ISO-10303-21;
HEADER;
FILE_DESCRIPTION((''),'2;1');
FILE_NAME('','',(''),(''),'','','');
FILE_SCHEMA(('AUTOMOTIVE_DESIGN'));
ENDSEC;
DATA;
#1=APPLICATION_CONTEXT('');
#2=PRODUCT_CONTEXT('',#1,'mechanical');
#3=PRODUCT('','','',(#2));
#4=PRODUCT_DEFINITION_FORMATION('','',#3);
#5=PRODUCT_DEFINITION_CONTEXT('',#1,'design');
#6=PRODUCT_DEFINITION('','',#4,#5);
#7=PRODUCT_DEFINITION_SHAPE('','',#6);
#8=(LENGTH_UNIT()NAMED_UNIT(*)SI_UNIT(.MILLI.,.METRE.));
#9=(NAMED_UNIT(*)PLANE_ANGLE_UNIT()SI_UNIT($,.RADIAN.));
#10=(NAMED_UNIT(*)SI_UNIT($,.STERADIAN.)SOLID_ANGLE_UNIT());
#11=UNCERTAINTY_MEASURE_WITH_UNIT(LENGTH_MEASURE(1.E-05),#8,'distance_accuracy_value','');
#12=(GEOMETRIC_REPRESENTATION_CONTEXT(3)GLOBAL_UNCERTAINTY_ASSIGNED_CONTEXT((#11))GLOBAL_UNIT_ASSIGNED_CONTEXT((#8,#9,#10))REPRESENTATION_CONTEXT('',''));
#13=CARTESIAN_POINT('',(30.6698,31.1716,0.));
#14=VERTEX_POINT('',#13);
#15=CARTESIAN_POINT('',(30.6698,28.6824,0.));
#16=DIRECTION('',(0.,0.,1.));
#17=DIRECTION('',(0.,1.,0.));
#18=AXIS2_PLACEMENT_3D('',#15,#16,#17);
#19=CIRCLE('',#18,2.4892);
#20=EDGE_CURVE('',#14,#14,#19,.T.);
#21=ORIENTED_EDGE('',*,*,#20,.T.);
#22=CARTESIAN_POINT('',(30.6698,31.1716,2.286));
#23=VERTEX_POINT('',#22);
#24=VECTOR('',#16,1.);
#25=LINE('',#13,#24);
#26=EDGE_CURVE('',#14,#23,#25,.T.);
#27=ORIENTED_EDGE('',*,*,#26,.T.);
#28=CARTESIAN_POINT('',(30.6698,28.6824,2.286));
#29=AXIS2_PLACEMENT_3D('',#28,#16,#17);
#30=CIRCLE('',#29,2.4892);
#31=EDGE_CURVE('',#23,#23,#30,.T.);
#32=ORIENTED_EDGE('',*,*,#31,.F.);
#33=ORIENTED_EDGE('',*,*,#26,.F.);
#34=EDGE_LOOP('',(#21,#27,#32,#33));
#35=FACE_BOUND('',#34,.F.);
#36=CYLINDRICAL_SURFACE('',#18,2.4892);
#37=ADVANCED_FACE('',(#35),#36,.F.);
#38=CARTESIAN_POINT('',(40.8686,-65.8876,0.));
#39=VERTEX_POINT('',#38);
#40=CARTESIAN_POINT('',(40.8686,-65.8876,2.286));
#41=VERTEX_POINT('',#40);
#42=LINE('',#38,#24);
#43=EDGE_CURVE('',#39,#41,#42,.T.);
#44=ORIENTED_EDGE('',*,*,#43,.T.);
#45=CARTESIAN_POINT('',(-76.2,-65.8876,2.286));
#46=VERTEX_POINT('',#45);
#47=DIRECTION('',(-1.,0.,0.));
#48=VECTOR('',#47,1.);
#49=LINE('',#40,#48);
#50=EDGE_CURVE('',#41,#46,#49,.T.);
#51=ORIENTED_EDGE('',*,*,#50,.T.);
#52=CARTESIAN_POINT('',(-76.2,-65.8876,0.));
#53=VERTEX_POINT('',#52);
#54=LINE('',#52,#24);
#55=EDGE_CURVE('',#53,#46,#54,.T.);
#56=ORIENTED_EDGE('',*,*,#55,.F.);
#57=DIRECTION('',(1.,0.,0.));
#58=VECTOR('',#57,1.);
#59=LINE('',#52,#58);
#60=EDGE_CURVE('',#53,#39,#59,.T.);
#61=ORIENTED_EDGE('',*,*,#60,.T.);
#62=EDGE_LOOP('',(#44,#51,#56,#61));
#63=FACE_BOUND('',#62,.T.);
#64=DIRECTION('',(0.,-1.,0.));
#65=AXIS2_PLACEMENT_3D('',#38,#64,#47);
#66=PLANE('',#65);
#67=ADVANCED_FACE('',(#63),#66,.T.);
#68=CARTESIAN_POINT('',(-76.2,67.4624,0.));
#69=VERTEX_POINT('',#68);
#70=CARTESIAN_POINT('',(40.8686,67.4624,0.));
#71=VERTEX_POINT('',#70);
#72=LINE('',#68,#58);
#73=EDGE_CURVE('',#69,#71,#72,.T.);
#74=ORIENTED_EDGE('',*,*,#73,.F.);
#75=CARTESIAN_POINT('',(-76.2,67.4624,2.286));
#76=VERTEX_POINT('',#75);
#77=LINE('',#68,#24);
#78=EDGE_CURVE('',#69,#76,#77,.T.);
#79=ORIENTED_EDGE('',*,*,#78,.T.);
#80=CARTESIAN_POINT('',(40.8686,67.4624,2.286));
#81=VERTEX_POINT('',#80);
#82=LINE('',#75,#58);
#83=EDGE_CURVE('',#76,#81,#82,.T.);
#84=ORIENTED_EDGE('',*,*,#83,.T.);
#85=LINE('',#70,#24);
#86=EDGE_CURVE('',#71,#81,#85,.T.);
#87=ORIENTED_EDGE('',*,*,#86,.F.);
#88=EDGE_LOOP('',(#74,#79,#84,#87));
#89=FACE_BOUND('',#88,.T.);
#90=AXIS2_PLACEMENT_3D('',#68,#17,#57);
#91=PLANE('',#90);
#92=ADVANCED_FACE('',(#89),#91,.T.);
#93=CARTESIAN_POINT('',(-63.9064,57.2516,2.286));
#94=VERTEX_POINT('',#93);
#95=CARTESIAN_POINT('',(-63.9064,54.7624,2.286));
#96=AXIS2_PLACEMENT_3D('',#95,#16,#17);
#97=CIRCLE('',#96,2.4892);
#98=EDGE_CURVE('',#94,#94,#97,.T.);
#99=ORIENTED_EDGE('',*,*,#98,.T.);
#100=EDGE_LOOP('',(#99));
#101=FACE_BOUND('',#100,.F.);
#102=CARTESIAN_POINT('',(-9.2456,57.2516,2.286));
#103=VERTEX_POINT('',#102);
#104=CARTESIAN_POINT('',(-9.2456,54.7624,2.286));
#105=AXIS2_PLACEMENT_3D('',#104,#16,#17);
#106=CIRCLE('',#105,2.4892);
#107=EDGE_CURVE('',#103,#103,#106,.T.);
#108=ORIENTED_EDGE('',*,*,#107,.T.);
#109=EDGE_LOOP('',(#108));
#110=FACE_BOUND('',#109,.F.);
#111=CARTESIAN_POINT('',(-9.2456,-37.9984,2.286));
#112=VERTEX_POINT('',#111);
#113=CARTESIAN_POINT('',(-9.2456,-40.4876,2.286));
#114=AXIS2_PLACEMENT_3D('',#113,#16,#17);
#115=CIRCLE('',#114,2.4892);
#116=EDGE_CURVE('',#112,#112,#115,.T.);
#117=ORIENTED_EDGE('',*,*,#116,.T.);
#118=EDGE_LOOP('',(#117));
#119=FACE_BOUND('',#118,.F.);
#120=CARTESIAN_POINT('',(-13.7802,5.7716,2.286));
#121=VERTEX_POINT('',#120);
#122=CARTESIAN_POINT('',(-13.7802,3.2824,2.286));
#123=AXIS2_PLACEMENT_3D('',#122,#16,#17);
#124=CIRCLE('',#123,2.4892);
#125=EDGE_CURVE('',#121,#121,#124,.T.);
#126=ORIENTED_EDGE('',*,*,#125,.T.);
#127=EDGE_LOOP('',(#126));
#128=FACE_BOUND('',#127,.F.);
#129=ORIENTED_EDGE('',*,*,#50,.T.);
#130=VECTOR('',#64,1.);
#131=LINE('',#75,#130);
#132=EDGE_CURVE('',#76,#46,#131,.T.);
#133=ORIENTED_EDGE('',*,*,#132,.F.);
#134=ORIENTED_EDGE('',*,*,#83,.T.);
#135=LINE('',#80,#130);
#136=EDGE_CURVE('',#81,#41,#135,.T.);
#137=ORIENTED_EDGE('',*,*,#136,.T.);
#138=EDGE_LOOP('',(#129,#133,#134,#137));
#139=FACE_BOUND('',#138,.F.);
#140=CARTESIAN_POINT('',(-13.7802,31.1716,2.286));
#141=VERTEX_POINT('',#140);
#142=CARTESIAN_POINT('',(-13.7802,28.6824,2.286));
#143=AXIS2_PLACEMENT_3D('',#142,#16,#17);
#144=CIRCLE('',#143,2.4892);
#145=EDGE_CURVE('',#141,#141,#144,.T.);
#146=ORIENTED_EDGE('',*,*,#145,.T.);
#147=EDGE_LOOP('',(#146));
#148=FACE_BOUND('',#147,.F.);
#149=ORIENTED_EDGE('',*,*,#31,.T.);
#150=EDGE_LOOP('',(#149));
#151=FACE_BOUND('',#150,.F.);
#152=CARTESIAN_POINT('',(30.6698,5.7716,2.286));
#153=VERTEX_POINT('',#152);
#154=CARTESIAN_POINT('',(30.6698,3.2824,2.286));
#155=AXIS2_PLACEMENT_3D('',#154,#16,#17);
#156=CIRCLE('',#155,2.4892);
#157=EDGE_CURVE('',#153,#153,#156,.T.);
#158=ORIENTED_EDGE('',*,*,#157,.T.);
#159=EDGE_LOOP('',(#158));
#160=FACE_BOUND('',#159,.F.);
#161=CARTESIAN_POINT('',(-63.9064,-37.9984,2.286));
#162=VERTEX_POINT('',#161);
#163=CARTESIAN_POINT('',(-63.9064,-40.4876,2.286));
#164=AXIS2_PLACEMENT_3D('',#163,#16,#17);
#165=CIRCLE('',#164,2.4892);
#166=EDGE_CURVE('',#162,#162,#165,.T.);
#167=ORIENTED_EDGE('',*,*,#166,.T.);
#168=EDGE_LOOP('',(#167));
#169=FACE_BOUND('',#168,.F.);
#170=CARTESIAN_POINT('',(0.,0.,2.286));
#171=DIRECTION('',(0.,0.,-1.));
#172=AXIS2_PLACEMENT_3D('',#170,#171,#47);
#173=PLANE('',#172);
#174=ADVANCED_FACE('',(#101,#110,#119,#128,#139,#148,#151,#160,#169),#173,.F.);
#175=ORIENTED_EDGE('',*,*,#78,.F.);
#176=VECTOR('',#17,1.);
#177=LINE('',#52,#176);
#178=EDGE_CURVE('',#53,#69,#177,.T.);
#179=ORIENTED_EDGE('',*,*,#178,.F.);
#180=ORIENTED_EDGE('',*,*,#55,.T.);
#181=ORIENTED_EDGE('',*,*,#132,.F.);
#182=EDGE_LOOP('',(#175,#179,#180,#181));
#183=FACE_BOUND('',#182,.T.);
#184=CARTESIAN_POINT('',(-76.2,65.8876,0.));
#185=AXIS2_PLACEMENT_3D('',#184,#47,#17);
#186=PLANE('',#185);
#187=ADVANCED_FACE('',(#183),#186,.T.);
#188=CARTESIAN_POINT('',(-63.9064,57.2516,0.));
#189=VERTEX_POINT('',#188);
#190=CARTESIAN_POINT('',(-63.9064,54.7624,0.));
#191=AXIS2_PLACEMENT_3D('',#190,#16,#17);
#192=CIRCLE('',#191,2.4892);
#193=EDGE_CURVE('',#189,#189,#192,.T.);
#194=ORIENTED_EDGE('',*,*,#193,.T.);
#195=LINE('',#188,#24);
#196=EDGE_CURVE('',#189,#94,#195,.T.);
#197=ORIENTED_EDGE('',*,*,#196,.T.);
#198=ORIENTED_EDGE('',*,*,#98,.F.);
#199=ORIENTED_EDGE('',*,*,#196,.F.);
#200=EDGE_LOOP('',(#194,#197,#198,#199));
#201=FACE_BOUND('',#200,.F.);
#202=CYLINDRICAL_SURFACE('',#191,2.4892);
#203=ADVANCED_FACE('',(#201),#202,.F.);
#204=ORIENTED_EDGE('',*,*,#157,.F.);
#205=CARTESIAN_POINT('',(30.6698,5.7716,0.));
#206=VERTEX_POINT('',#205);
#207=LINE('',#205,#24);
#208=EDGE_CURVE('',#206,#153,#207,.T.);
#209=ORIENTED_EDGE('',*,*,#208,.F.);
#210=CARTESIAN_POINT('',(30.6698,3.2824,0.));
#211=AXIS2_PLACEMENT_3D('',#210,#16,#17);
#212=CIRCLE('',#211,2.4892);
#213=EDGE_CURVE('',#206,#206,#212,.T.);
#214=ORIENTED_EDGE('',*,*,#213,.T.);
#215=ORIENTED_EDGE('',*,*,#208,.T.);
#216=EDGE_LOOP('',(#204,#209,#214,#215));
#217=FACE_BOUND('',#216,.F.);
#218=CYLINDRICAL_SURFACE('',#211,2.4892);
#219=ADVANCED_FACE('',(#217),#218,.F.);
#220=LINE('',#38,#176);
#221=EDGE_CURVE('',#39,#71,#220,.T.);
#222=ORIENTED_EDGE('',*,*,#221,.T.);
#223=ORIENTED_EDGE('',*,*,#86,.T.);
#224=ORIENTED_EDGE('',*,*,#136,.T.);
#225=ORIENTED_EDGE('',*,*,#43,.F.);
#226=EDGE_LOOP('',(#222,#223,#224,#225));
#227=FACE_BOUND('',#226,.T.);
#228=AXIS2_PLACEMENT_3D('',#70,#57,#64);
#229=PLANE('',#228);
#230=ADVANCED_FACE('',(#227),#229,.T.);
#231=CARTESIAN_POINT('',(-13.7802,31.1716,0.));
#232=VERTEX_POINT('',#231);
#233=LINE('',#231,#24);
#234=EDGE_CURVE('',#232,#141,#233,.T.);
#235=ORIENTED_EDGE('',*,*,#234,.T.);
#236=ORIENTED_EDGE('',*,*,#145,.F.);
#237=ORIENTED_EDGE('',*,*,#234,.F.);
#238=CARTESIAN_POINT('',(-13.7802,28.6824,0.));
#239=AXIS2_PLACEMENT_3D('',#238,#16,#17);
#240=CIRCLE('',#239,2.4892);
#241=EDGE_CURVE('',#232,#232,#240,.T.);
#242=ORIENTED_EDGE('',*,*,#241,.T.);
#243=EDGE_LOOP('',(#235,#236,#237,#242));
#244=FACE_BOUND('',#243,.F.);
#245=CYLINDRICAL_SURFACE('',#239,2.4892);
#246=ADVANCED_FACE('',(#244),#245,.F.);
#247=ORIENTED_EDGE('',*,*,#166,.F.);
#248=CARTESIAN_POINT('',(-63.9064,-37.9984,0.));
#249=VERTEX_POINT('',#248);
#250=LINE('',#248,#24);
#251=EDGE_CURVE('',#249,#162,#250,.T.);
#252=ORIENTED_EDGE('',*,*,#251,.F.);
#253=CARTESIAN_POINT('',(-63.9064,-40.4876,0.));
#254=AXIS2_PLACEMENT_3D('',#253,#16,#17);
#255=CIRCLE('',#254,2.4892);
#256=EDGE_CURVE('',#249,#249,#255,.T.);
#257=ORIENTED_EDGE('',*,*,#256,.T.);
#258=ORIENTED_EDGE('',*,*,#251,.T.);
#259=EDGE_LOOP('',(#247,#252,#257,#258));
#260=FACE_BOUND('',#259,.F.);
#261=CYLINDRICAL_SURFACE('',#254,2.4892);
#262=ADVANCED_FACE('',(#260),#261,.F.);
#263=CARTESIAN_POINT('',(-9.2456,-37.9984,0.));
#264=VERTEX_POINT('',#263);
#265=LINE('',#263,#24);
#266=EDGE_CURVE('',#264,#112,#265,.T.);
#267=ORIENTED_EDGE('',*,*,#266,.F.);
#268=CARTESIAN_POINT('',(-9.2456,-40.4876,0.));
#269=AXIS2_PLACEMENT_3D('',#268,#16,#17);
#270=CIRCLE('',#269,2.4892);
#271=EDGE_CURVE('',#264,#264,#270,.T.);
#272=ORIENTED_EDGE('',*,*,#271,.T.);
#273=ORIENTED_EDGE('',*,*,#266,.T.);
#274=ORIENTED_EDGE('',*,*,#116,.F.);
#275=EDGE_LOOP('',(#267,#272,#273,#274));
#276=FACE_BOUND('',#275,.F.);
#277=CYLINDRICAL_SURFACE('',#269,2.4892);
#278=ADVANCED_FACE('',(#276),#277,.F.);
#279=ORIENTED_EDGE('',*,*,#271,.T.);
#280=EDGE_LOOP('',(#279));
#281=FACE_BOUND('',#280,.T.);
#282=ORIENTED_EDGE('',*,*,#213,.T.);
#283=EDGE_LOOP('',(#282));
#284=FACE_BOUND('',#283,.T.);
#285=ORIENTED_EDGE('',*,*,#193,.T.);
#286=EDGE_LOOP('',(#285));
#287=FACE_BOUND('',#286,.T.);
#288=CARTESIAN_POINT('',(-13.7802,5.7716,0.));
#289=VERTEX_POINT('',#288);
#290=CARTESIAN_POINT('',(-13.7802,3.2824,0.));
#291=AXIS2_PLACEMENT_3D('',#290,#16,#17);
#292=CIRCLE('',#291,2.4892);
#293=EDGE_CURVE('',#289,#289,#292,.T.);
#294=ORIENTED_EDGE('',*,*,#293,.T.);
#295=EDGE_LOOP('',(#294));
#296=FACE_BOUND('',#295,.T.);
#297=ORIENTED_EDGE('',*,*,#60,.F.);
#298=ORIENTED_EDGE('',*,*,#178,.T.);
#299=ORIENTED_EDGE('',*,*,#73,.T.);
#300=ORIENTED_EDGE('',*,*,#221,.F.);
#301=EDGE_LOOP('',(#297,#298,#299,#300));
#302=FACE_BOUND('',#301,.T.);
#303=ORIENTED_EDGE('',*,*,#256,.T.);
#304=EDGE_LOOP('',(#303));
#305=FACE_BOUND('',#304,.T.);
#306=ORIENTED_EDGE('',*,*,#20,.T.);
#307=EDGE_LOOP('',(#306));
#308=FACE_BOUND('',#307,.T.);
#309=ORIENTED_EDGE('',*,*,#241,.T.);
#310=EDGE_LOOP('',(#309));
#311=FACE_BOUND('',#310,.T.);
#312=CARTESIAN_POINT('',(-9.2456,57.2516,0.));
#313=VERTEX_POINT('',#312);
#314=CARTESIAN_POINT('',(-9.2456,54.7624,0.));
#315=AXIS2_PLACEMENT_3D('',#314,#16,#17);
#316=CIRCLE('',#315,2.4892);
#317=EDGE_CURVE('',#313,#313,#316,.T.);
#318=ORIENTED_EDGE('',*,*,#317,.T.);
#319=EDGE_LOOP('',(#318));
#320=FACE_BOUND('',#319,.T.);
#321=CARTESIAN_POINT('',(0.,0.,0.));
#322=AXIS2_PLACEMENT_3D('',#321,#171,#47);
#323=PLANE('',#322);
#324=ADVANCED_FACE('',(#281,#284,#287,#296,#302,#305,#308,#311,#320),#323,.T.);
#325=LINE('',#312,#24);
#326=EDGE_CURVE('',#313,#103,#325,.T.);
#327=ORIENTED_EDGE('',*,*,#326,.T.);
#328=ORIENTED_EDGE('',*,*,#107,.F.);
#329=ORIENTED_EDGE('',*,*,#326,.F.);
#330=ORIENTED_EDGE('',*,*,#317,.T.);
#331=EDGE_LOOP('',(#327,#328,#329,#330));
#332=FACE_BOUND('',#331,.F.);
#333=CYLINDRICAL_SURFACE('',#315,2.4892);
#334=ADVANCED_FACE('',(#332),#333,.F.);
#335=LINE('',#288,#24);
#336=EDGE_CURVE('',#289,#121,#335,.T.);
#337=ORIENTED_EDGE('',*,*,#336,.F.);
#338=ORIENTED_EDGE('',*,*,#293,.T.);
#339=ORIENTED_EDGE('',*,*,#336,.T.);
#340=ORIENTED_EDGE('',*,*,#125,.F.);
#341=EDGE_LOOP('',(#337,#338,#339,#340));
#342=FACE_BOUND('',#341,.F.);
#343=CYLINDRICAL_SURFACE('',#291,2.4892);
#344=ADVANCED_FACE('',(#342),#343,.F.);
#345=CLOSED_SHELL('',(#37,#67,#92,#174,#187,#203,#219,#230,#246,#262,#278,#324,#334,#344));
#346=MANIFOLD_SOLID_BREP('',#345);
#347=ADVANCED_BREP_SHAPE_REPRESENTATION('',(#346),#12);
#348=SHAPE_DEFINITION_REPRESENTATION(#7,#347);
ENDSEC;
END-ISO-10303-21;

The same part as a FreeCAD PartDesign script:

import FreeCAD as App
import Part
import Sketcher

V = App.Vector
Q = App.Units.Quantity

doc = App.newDocument("Part")
body = doc.addObject("PartDesign::Body", "Body")

sketch1 = body.newObject("Sketcher::SketchObject", "Sketch")
sketch1.AttachmentSupport = (doc.getObject("XY_Plane"), [""])
sketch1.MapMode = "FlatFace"
sketch1.addGeometry([
    Part.LineSegment(V(-76, -66, 0), V(41, -66, 0)),
    Part.LineSegment(V(41, -66, 0), V(41, 66, 0)),
    Part.LineSegment(V(41, 66, 0), V(-76, 66, 0)),
    Part.LineSegment(V(-76, 66, 0), V(-76, -66, 0)),
], False)
sketch1.addConstraint([
    Sketcher.Constraint("Coincident", 0, 2, 1, 1),
    Sketcher.Constraint("Coincident", 1, 2, 2, 1),
    Sketcher.Constraint("Coincident", 2, 2, 3, 1),
    Sketcher.Constraint("Coincident", 3, 2, 0, 1),
    Sketcher.Constraint("Horizontal", 0),
    Sketcher.Constraint("Vertical", 1),
    Sketcher.Constraint("Horizontal", 2),
    Sketcher.Constraint("Vertical", 3),
    Sketcher.Constraint("DistanceY", 1, 1, 1, 2, Q("5.188 in")),
    Sketcher.Constraint("DistanceX", 2, 2, -1, 1, Q("3 in")),
    Sketcher.Constraint("DistanceX", 0, 1, 0, 2, Q("4.609 in")),
    Sketcher.Constraint("DistanceY", 0, 2, -1, 1, Q("2.594 in")),
])
pad1 = body.newObject("PartDesign::Pad", "Pad")
pad1.Profile = sketch1
pad1.Length = Q("0.09 in")

sketch2 = body.newObject("Sketcher::SketchObject", "Sketch001")
sketch2.AttachmentSupport = (doc.getObject("XY_Plane"), [""])
sketch2.MapMode = "FlatFace"
sketch2.addGeometry([
    Part.Circle(V(-13.8, 3.3, 0), V(0, 0, 1), 2.5),
    Part.Circle(V(30.7, 3.3, 0), V(0, 0, 1), 2.5),
    Part.Circle(V(30.7, 28.7, 0), V(0, 0, 1), 2.5),
    Part.Circle(V(-13.8, 28.7, 0), V(0, 0, 1), 2.5),
], False)
sketch2.addConstraint([
    Sketcher.Constraint("Equal", 0, 1),
    Sketcher.Constraint("Equal", 1, 2),
    Sketcher.Constraint("Equal", 2, 3),
    Sketcher.Constraint("Horizontal", 0, 3, 1, 3),
    Sketcher.Constraint("Horizontal", 2, 3, 3, 3),
    Sketcher.Constraint("Vertical", 1, 3, 2, 3),
    Sketcher.Constraint("Vertical", 0, 3, 3, 3),
    Sketcher.Constraint("Diameter", 0, Q("0.196 in")),
    Sketcher.Constraint("DistanceY", 1, 3, 2, 3, Q("1 in")),
    Sketcher.Constraint("DistanceX", 0, 3, 1, 3, Q("1.75 in")),
    Sketcher.Constraint("DistanceX", 0, 3, -1, 1, 13.7802),
    Sketcher.Constraint("DistanceY", -1, 1, 0, 3, 3.2824),
])
doc.recompute()
hole = body.newObject("PartDesign::Hole", "Hole")
hole.Profile = sketch2
hole.ThreadType = "None"
hole.Diameter = Q("0.196 in")
hole.DepthType = "ThroughAll"
hole.Reversed = True

sketch3 = body.newObject("Sketcher::SketchObject", "Sketch002")
sketch3.AttachmentSupport = (doc.getObject("XY_Plane"), [""])
sketch3.MapMode = "FlatFace"
sketch3.addGeometry([
    Part.Circle(V(-63.9, -40.5, 0), V(0, 0, 1), 2.5),
    Part.Circle(V(-9.2, -40.5, 0), V(0, 0, 1), 2.5),
    Part.Circle(V(-63.9, 54.8, 0), V(0, 0, 1), 2.5),
    Part.Circle(V(-9.2, 54.8, 0), V(0, 0, 1), 2.5),
], False)
sketch3.addConstraint([
    Sketcher.Constraint("Equal", 0, 1),
    Sketcher.Constraint("Equal", 1, 2),
    Sketcher.Constraint("Equal", 2, 3),
    Sketcher.Constraint("Horizontal", 0, 3, 1, 3),
    Sketcher.Constraint("Horizontal", 2, 3, 3, 3),
    Sketcher.Constraint("Vertical", 0, 3, 2, 3),
    Sketcher.Constraint("Vertical", 1, 3, 3, 3),
    Sketcher.Constraint("Diameter", 0, Q("0.196 in")),
    Sketcher.Constraint("DistanceY", 0, 3, 2, 3, Q("3.75 in")),
    Sketcher.Constraint("DistanceX", 0, 3, -1, 1, Q("2.516 in")),
    Sketcher.Constraint("DistanceY", 0, 3, -1, 1, Q("1.594 in")),
    Sketcher.Constraint("DistanceX", 1, 3, -1, 1, Q("0.364 in")),
])
doc.recompute()
hole2 = body.newObject("PartDesign::Hole", "Hole001")
hole2.Profile = sketch3
hole2.ThreadType = "None"
hole2.Diameter = Q("0.196 in")
hole2.DepthType = "ThroughAll"
hole2.Reversed = True

sketch4 = body.newObject("Sketcher::SketchObject", "Sketch003")
sketch4.AttachmentSupport = (doc.getObject("XY_Plane"), [""])
sketch4.MapMode = "FlatFace"
sketch4.addGeometry([
    Part.LineSegment(V(40.9, 67.5, 0), V(40.9, 65.9, 0)),
    Part.LineSegment(V(40.9, 65.9, 0), V(-76.2, 65.9, 0)),
    Part.LineSegment(V(-76.2, 65.9, 0), V(-76.2, 67.5, 0)),
    Part.LineSegment(V(-76.2, 67.5, 0), V(40.9, 67.5, 0)),
], False)
sketch4.addConstraint([
    Sketcher.Constraint("Coincident", 0, 2, 1, 1),
    Sketcher.Constraint("Coincident", 1, 2, 2, 1),
    Sketcher.Constraint("Coincident", 2, 2, 3, 1),
    Sketcher.Constraint("Coincident", 3, 2, 0, 1),
    Sketcher.Constraint("Vertical", 0),
    Sketcher.Constraint("Horizontal", 1),
    Sketcher.Constraint("Vertical", 2),
    Sketcher.Constraint("Horizontal", 3),
    Sketcher.Constraint("DistanceY", 0, 2, 0, 1, Q("0.062 in")),
    Sketcher.Constraint("DistanceX", 1, 2, -1, 1, Q("3 in")),
    Sketcher.Constraint("DistanceX", 1, 2, 1, 1, Q("4.609 in")),
    Sketcher.Constraint("DistanceY", -1, 1, 0, 2, Q("2.594 in")),
])
pad2 = body.newObject("PartDesign::Pad", "Pad001")
pad2.Profile = sketch4
pad2.Length = Q("0.09 in")

doc.recompute()
